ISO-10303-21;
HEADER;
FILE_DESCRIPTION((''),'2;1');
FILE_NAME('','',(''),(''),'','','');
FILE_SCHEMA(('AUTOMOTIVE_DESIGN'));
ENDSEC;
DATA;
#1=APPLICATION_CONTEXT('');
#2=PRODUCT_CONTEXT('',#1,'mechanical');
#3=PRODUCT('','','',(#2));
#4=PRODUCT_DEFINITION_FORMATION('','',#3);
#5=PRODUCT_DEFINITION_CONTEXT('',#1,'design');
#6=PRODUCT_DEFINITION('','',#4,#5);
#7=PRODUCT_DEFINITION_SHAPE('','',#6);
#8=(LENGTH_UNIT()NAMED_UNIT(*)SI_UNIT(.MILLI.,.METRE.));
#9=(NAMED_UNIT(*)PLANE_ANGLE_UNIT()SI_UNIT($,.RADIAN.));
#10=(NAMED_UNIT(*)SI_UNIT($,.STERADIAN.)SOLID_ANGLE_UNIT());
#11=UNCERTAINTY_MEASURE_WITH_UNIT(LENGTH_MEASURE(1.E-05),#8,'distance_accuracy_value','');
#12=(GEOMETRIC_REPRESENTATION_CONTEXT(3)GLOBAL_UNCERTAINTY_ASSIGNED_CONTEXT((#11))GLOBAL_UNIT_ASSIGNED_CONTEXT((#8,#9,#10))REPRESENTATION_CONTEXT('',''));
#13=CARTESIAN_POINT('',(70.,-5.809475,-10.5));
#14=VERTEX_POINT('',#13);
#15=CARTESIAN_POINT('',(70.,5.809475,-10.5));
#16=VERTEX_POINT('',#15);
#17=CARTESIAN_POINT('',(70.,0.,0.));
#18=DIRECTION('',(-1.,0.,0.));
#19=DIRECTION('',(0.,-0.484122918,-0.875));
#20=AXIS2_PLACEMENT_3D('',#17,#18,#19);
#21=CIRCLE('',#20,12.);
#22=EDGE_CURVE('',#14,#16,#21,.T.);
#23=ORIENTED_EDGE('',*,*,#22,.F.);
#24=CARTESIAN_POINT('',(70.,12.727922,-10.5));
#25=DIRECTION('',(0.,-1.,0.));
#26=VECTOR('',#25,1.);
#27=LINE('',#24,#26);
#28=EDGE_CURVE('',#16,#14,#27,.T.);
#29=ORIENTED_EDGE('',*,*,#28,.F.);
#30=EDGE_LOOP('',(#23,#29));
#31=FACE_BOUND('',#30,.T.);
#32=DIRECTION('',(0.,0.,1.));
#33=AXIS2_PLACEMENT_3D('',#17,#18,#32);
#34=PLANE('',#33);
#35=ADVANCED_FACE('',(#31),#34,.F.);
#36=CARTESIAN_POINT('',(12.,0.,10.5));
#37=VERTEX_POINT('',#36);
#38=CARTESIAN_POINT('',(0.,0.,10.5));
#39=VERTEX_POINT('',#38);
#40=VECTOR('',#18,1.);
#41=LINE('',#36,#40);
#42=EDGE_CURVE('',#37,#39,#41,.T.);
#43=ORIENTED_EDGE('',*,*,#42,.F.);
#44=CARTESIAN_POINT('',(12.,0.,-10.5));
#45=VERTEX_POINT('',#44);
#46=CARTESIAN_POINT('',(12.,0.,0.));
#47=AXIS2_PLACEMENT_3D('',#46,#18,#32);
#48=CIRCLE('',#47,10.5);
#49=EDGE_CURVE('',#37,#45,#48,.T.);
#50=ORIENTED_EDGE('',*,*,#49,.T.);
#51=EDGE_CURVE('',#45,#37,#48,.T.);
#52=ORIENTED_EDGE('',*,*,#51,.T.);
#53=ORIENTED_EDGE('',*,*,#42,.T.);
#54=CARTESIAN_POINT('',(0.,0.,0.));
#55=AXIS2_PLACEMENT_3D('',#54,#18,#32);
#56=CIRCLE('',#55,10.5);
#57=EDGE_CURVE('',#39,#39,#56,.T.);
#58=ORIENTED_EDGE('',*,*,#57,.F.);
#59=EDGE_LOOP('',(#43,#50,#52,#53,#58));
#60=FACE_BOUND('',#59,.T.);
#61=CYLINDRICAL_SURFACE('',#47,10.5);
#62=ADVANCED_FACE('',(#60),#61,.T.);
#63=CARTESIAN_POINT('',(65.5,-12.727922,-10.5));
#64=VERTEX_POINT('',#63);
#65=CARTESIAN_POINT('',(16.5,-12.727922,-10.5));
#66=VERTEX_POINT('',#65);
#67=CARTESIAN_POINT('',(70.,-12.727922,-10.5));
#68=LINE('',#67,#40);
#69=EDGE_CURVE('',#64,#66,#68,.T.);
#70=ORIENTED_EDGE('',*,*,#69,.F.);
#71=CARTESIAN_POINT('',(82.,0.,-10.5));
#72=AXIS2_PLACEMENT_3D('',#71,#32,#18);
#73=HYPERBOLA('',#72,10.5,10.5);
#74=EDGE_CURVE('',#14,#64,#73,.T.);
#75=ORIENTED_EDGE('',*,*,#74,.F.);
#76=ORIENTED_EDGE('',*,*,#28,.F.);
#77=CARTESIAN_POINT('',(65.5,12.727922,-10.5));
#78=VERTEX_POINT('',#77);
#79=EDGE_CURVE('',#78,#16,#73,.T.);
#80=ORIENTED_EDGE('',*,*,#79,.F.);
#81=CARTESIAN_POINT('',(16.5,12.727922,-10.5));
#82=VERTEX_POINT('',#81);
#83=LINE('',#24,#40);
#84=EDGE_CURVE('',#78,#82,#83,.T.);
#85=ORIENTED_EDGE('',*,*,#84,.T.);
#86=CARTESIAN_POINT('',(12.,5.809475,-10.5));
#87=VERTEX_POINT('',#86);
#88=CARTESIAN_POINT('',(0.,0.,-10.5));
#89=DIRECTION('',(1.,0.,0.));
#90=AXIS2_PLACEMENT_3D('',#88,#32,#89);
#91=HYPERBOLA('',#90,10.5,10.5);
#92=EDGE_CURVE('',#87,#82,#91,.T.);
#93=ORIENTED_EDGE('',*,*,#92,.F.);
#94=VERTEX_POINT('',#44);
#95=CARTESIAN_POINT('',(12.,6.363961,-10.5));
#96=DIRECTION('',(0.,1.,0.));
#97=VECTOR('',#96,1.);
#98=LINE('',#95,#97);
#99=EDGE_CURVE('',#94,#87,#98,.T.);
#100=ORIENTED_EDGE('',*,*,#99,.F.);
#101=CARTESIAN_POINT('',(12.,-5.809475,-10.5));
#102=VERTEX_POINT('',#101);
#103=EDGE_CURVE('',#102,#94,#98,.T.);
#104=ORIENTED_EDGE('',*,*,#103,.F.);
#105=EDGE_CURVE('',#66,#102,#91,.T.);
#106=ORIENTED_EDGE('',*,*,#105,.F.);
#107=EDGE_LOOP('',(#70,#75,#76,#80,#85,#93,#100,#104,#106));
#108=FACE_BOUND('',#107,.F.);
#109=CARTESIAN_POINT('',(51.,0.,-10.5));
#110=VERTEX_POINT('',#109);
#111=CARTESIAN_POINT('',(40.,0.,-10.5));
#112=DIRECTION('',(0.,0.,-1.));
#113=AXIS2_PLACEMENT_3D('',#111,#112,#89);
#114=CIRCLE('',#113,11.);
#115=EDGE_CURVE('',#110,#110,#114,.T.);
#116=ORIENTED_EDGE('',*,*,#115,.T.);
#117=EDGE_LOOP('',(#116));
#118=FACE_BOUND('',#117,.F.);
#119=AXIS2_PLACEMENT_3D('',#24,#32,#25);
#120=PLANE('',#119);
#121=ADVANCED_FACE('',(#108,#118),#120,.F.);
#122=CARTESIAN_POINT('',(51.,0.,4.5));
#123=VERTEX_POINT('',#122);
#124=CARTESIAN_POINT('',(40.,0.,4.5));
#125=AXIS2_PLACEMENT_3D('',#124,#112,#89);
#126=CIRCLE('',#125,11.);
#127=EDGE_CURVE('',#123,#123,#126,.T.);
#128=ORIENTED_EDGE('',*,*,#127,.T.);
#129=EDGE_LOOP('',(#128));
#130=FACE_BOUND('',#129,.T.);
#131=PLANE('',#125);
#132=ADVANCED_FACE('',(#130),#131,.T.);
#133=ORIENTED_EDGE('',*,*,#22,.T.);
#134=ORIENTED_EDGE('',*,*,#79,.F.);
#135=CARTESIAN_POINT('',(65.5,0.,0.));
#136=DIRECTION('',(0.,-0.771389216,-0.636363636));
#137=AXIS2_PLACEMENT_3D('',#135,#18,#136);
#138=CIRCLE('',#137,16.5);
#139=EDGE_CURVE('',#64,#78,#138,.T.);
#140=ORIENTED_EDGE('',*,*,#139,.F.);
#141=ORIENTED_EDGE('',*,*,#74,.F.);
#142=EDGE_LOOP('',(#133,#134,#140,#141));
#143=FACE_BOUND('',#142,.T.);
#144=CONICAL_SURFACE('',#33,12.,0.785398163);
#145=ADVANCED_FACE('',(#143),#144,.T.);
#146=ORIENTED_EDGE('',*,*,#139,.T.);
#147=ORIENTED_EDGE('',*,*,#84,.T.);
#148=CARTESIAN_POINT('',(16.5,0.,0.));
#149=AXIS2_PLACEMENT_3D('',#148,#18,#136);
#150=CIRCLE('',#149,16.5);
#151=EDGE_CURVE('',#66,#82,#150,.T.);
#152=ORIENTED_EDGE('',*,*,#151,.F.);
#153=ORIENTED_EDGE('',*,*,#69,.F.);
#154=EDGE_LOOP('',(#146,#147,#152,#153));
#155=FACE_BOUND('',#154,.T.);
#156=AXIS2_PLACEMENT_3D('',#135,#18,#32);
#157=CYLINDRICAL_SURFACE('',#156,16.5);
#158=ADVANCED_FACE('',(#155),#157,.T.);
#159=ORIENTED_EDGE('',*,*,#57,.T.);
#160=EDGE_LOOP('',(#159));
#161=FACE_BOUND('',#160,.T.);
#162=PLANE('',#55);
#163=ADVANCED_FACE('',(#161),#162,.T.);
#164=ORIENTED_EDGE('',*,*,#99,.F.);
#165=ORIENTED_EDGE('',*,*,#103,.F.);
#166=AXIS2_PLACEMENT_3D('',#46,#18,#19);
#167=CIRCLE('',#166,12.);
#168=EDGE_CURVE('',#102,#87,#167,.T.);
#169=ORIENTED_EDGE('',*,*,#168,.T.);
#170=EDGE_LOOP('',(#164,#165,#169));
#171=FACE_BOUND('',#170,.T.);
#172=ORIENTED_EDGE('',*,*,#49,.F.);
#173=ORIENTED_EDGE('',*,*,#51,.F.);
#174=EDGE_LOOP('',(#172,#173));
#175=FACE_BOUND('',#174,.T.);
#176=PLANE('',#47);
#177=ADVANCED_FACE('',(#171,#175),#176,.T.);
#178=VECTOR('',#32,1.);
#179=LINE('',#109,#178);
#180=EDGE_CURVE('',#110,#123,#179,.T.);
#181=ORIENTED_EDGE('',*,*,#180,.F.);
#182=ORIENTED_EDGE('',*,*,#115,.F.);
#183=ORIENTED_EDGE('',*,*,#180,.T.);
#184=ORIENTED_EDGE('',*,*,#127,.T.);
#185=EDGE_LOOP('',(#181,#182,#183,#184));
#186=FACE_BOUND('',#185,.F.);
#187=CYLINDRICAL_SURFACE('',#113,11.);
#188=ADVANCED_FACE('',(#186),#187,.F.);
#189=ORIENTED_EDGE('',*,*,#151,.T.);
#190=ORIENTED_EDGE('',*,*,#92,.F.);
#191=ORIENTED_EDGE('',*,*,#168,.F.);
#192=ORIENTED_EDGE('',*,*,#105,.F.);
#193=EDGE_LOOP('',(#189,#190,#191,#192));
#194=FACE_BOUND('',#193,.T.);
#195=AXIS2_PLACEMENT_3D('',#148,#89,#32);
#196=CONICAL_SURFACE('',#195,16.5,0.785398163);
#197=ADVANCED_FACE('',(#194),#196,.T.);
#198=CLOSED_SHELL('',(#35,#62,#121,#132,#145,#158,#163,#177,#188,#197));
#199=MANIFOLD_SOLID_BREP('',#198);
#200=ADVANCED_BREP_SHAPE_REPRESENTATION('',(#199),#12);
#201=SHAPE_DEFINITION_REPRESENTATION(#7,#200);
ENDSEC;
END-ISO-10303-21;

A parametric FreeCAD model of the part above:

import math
import FreeCAD as App
import Part
import Sketcher


def add_polygon(sketch, points):
    """Adds a closed chain of lines whose ends are joined by coincident constraints."""
    first, n = sketch.GeometryCount, len(points)
    for a, b in zip(points, points[1:] + points[:1]):
        sketch.addGeometry(Part.LineSegment(App.Vector(*a, 0), App.Vector(*b, 0)), False)
    for i in range(n):
        sketch.addConstraint(Sketcher.Constraint("Coincident", first + i, 2, first + (i + 1) % n, 1))

doc = App.newDocument("Part")
body = doc.addObject("PartDesign::Body", "Body")

sketch1 = body.newObject("Sketcher::SketchObject", "Sketch")
sketch1.AttachmentSupport = (doc.getObject("XZ_Plane"), [""])
sketch1.MapMode = "FlatFace"
add_polygon(sketch1, [(0, 10.5), (0, 0), (70, 0), (70, 12), (65.5, 16.5), (16.5, 16.5), (12, 12), (12, 10.5)])
sketch1.addConstraint(Sketcher.Constraint("Vertical", 0))
sketch1.addConstraint(Sketcher.Constraint("Horizontal", 1))
sketch1.addConstraint(Sketcher.Constraint("Vertical", 2))
sketch1.addConstraint(Sketcher.Constraint("Horizontal", 4))
sketch1.addConstraint(Sketcher.Constraint("Vertical", 6))
sketch1.addConstraint(Sketcher.Constraint("Horizontal", 7))
sketch1.addConstraint(Sketcher.Constraint("Coincident", 0, 2, -1, 1))
sketch1.addConstraint(Sketcher.Constraint("Perpendicular", 3, 5))
sketch1.addConstraint(Sketcher.Constraint("Horizontal", 2, 2, 5, 2))
sketch1.addConstraint(Sketcher.Constraint("Equal", 7, 2))
sketch1.addConstraint(Sketcher.Constraint("Equal", 3, 5))
sketch1.addConstraint(Sketcher.Constraint("DistanceX", 1, 1, 1, 2, 70.0))
sketch1.addConstraint(Sketcher.Constraint("DistanceX", 4, 2, 4, 1, 49.0))
sketch1.addConstraint(Sketcher.Constraint("DistanceX", 7, 2, 7, 1, 12.0))
sketch1.addConstraint(Sketcher.Constraint("DistanceY", 0, 2, 0, 1, 10.5))
revolution = body.newObject("PartDesign::Revolution", "Revolution")
revolution.Profile = sketch1
revolution.ReferenceAxis = (sketch1, ["H_Axis"])
revolution.Angle = 360

sketch2 = body.newObject("Sketcher::SketchObject", "Sketch001")
sketch2.AttachmentSupport = (doc.getObject("YZ_Plane"), [""])
sketch2.MapMode = "FlatFace"
sketch2.AttachmentOffset = App.Placement(App.Vector(0, 0, 70), App.Rotation())
sketch2.addGeometry(Part.ArcOfCircle(Part.Circle(App.Vector(0, 0, 0), App.Vector(0, 0, 1), 16), math.radians(-140), math.radians(-40)), False)
sketch2.addGeometry(Part.LineSegment(App.Vector(13, -10, 0), App.Vector(-13, -10, 0)), False)
sketch2.addConstraint(Sketcher.Constraint("Coincident", 0, 1, 1, 2))
sketch2.addConstraint(Sketcher.Constraint("Coincident", 1, 1, 0, 2))
sketch2.addConstraint(Sketcher.Constraint("Horizontal", 1))
sketch2.addConstraint(Sketcher.Constraint("Coincident", 0, 3, -1, 1))
sketch2.addConstraint(Sketcher.Constraint("Radius", 0, 16.5))
sketch2.addConstraint(Sketcher.Constraint("DistanceY", 0, 1, -1, 1, 10.5))
pocket1 = body.newObject("PartDesign::Pocket", "Pocket")
pocket1.Profile = sketch2
pocket1.Length = 73.8

sketch3 = body.newObject("Sketcher::SketchObject", "Sketch002")
sketch3.AttachmentSupport = (doc.getObject("XY_Plane"), [""])
sketch3.MapMode = "FlatFace"
sketch3.AttachmentOffset = App.Placement(App.Vector(0, 0, -10.5), App.Rotation())
sketch3.addGeometry(Part.Circle(App.Vector(40, 0, 0), App.Vector(0, 0, 1), 11), False)
sketch3.addConstraint(Sketcher.Constraint("PointOnObject", 0, 3, -1))
sketch3.addConstraint(Sketcher.Constraint("Diameter", 0, 22.0))
sketch3.addConstraint(Sketcher.Constraint("DistanceX", -1, 1, 0, 3, 40.0))
pocket2 = body.newObject("PartDesign::Pocket", "Pocket001")
pocket2.Profile = sketch3
pocket2.Length = 15
pocket2.Reversed = True

doc.recompute()
